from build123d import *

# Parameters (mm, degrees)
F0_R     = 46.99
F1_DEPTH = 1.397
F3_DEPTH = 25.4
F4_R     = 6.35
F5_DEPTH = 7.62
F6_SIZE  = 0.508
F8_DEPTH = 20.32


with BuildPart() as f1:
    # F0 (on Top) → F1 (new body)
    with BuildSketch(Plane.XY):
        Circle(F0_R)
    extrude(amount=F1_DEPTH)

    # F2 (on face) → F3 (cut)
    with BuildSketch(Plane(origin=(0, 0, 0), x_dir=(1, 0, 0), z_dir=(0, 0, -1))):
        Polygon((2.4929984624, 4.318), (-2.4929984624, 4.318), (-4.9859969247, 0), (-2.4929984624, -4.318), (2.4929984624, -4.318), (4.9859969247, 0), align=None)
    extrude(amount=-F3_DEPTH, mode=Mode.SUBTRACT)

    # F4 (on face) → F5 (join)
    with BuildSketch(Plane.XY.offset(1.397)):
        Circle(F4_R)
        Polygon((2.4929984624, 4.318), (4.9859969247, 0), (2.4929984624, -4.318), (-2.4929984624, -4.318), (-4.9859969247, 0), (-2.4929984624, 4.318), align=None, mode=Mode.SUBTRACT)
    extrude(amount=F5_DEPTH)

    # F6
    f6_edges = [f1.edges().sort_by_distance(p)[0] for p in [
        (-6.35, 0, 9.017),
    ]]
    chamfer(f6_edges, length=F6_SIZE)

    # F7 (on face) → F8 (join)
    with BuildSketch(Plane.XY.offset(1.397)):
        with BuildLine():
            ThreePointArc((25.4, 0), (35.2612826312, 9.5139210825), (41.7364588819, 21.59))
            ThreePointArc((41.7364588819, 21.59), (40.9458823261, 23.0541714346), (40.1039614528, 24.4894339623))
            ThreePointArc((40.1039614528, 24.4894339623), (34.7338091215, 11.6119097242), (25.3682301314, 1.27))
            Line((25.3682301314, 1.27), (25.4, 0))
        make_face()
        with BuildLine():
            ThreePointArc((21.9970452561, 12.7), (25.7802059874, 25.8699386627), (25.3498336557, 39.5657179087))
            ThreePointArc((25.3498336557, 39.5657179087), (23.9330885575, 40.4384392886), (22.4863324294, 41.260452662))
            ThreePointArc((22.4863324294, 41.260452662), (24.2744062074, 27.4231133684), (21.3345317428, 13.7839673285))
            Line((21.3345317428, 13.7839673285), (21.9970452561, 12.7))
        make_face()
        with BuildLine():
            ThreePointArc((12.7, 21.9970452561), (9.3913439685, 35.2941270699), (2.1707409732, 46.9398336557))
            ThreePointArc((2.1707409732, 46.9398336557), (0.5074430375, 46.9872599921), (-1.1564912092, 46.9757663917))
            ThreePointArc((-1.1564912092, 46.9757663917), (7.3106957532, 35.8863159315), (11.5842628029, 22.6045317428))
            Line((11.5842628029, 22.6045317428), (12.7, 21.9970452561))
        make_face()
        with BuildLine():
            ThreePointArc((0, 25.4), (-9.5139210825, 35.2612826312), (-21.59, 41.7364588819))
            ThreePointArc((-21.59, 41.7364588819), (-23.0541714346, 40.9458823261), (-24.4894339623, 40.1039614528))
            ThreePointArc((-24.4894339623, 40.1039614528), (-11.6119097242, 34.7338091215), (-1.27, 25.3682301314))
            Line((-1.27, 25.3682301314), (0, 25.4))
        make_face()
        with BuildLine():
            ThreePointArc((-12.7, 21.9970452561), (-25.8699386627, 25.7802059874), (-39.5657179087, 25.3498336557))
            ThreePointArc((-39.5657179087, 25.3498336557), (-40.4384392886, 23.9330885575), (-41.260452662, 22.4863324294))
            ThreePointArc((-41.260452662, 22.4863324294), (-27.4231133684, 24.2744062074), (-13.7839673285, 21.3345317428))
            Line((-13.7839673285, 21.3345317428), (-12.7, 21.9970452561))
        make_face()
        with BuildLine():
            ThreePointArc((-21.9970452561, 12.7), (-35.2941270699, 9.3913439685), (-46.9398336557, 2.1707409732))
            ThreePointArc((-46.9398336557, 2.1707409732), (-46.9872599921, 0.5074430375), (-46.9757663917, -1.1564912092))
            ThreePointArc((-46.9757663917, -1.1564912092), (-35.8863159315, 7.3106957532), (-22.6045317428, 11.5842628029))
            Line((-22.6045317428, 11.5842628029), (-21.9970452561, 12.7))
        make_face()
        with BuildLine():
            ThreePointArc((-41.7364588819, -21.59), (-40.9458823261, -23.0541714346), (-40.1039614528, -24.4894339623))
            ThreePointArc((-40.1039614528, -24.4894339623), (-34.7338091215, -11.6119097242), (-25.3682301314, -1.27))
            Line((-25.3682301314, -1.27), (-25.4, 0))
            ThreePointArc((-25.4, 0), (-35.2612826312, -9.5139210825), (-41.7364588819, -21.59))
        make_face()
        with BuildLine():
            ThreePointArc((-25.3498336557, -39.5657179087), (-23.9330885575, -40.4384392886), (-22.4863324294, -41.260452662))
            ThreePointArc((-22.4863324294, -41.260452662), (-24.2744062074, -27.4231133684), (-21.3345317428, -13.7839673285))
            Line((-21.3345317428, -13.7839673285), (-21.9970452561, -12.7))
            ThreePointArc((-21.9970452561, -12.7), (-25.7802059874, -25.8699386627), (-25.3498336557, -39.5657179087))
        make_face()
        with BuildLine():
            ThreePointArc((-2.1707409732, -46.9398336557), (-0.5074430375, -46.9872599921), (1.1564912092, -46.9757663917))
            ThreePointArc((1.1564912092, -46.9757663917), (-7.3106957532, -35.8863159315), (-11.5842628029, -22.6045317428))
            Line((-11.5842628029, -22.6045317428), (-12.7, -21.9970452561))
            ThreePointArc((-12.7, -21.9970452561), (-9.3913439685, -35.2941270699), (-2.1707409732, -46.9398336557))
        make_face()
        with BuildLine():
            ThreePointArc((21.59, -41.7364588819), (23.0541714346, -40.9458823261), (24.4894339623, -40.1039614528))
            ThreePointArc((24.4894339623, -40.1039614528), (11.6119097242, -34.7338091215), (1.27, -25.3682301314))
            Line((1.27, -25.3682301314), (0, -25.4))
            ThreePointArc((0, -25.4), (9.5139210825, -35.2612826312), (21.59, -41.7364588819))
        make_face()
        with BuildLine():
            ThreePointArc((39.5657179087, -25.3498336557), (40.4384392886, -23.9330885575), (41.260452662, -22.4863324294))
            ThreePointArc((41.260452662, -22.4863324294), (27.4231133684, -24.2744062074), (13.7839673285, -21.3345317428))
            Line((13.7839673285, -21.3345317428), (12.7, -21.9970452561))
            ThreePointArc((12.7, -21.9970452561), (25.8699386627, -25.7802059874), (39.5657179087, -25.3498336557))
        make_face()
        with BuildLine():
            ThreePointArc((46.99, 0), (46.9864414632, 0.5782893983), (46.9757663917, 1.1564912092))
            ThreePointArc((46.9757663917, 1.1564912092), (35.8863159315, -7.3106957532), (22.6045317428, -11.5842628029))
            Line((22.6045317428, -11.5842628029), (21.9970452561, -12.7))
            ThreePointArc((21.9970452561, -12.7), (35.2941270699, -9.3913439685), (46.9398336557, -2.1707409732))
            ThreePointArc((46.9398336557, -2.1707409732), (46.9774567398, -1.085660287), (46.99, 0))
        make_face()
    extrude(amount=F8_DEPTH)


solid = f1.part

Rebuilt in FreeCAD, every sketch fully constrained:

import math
import FreeCAD as App
import Part
import Sketcher
Q = App.Units.Quantity


def edges_at(feature, points):
    """Names of the edges that pass closest to the given points."""
    edges = feature.Shape.Edges
    near = lambda p: min(range(len(edges)), key=lambda i: edges[i].distToShape(Part.Vertex(*p))[0])
    return sorted({f"Edge{near(p) + 1}" for p in points})


def add_polygon(sketch, points):
    """Adds a closed chain of lines whose ends are joined by coincident constraints."""
    first, n = sketch.GeometryCount, len(points)
    for a, b in zip(points, points[1:] + points[:1]):
        sketch.addGeometry(Part.LineSegment(App.Vector(*a, 0), App.Vector(*b, 0)), False)
    for i in range(n):
        sketch.addConstraint(Sketcher.Constraint("Coincident", first + i, 2, first + (i + 1) % n, 1))

doc = App.newDocument("Part")
body = doc.addObject("PartDesign::Body", "Body")

sketch1 = body.newObject("Sketcher::SketchObject", "Sketch")
sketch1.AttachmentSupport = (doc.getObject("XY_Plane"), [""])
sketch1.MapMode = "FlatFace"
sketch1.addGeometry(Part.Circle(App.Vector(0, 0, 0), App.Vector(0, 0, 1), 46.99), False)
sketch1.addConstraint([
    Sketcher.Constraint("Coincident", 0, 3, -1, 1),
    Sketcher.Constraint("Diameter", 0, Q("3.7 in")),
])
pad1 = body.newObject("PartDesign::Pad", "Pad")
pad1.Profile = sketch1
pad1.Length = Q("0.055 in")

sketch2 = body.newObject("Sketcher::SketchObject", "Sketch001")
sketch2.AttachmentSupport = (doc.getObject("XY_Plane"), [""])
sketch2.MapMode = "FlatFace"
add_polygon(sketch2, [(2.492998, -4.318), (-2.492998, -4.318), (-4.985997, 0), (-2.492998, 4.318), (2.492998, 4.318), (4.985997, 0)])
sketch2.addConstraint([
    Sketcher.Constraint("Horizontal", 0),
    Sketcher.Constraint("Horizontal", 3),
    Sketcher.Constraint("Symmetric", 0, 2, 3, 2, -1, 1),
    Sketcher.Constraint("Symmetric", 1, 2, 4, 2, -1, 1),
    Sketcher.Constraint("PointOnObject", 1, 2, -1),
    Sketcher.Constraint("Parallel", 2, 5),
    Sketcher.Constraint("Vertical", 0, 2, 2, 2),
    Sketcher.Constraint("Angle", 1, Q("120 deg")),
    Sketcher.Constraint("DistanceY", 0, 2, -1, 1, Q("0.17 in")),
    Sketcher.Constraint("DistanceX", 0, 2, -1, 1, Q("2.492998 mm")),
])
pocket1 = body.newObject("PartDesign::Pocket", "Pocket")
pocket1.Profile = sketch2
pocket1.Length = Q("1 in")
pocket1.Reversed = True

sketch3 = body.newObject("Sketcher::SketchObject", "Sketch002")
sketch3.AttachmentSupport = (doc.getObject("XY_Plane"), [""])
sketch3.MapMode = "FlatFace"
sketch3.AttachmentOffset = App.Placement(App.Vector(0, 0, 0.055 * 25.4), App.Rotation())
sketch3.addGeometry(Part.Circle(App.Vector(0, 0, 0), App.Vector(0, 0, 1), 6.35), False)
add_polygon(sketch3, [(-2.492998, 4.318), (2.492998, 4.318), (4.985997, 0), (2.492998, -4.318), (-2.492998, -4.318), (-4.985997, 0)])
sketch3.addConstraint([
    Sketcher.Constraint("Horizontal", 1),
    Sketcher.Constraint("Horizontal", 4),
    Sketcher.Constraint("Coincident", 0, 3, -1, 1),
    Sketcher.Constraint("Symmetric", 1, 2, 4, 2, -1, 1),
    Sketcher.Constraint("Symmetric", 2, 2, 5, 2, -1, 1),
    Sketcher.Constraint("PointOnObject", 2, 2, -1),
    Sketcher.Constraint("Parallel", 3, 6),
    Sketcher.Constraint("Vertical", 1, 2, 3, 2),
    Sketcher.Constraint("Diameter", 0, Q("0.5 in")),
    Sketcher.Constraint("Angle", 2, Q("-60 deg")),
    Sketcher.Constraint("DistanceY", -1, 1, 1, 2, Q("0.17 in")),
    Sketcher.Constraint("DistanceX", -1, 1, 1, 2, Q("2.492998 mm")),
])
pad2 = body.newObject("PartDesign::Pad", "Pad001")
pad2.Profile = sketch3
pad2.Length = Q("0.3 in")
doc.recompute()

chamfer = body.newObject("PartDesign::Chamfer", "Chamfer")
chamfer.Base = (pad2, edges_at(pad2, [(-6.35, 0, 9.017)]))
chamfer.Size = Q("0.02 in")

sketch4 = body.newObject("Sketcher::SketchObject", "Sketch003")
sketch4.AttachmentSupport = (doc.getObject("XY_Plane"), [""])
sketch4.MapMode = "FlatFace"
sketch4.AttachmentOffset = App.Placement(App.Vector(0, 0, 0.055 * 25.4), App.Rotation())
sketch4.addGeometry([
    Part.ArcOfCircle(Part.Circle(App.Vector(0, 36.195, 0), App.Vector(0, 0, 1), 44.218074), math.radians(-54.940573), math.radians(-19.28667)),
    Part.ArcOfCircle(Part.Circle(App.Vector(0, 0, 0), App.Vector(0, 0, 1), 46.99), math.radians(27.352233), math.radians(31.410274)),
    Part.ArcOfCircle(Part.Circle(App.Vector(0, 33.655, 0), App.Vector(0, 0, 1), 41.138003), math.radians(-51.92724), math.radians(-12.873571)),
    Part.LineSegment(App.Vector(25.36823, 1.27, 0), App.Vector(25.4, 0, 0)),
    Part.ArcOfCircle(Part.Circle(App.Vector(-18.0975, 31.345789, 0), App.Vector(0, 0, 1), 44.218074), math.radians(-24.940573), math.radians(10.71333)),
    Part.ArcOfCircle(Part.Circle(App.Vector(0, 0, 0), App.Vector(0, 0, 1), 46.99), math.radians(57.352233), math.radians(61.410274)),
    Part.ArcOfCircle(Part.Circle(App.Vector(-16.8275, 29.146085, 0), App.Vector(0, 0, 1), 41.138003), math.radians(-21.92724), math.radians(17.126429)),
    Part.LineSegment(App.Vector(21.334532, 13.783967, 0), App.Vector(21.997045, 12.7, 0)),
    Part.ArcOfCircle(Part.Circle(App.Vector(-31.345789, 18.0975, 0), App.Vector(0, 0, 1), 44.218074), math.radians(5.059427), math.radians(40.71333)),
    Part.ArcOfCircle(Part.Circle(App.Vector(0, 0, 0), App.Vector(0, 0, 1), 46.99), math.radians(87.352233), math.radians(91.410274)),
    Part.ArcOfCircle(Part.Circle(App.Vector(-29.146085, 16.8275, 0), App.Vector(0, 0, 1), 41.138003), math.radians(8.07276), math.radians(47.126429)),
    Part.LineSegment(App.Vector(11.584263, 22.604532, 0), App.Vector(12.7, 21.997045, 0)),
    Part.ArcOfCircle(Part.Circle(App.Vector(-36.195, 0, 0), App.Vector(0, 0, 1), 44.218074), math.radians(35.059427), math.radians(70.71333)),
    Part.ArcOfCircle(Part.Circle(App.Vector(0, 0, 0), App.Vector(0, 0, 1), 46.99), math.radians(117.352233), math.radians(121.410274)),
    Part.ArcOfCircle(Part.Circle(App.Vector(-33.655, 0, 0), App.Vector(0, 0, 1), 41.138003), math.radians(38.07276), math.radians(77.126429)),
    Part.LineSegment(App.Vector(-1.27, 25.36823, 0), App.Vector(0, 25.4, 0)),
    Part.ArcOfCircle(Part.Circle(App.Vector(-31.345789, -18.0975, 0), App.Vector(0, 0, 1), 44.218074), math.radians(65.059427), math.radians(100.71333)),
    Part.ArcOfCircle(Part.Circle(App.Vector(0, 0, 0), App.Vector(0, 0, 1), 46.99), math.radians(147.352233), math.radians(151.410274)),
    Part.ArcOfCircle(Part.Circle(App.Vector(-29.146085, -16.8275, 0), App.Vector(0, 0, 1), 41.138003), math.radians(68.07276), math.radians(107.126429)),
    Part.LineSegment(App.Vector(-13.783967, 21.334532, 0), App.Vector(-12.7, 21.997045, 0)),
    Part.ArcOfCircle(Part.Circle(App.Vector(-18.0975, -31.345789, 0), App.Vector(0, 0, 1), 44.218074), math.radians(95.059427), math.radians(130.71333)),
    Part.ArcOfCircle(Part.Circle(App.Vector(0, 0, 0), App.Vector(0, 0, 1), 46.99), math.radians(177.352233), math.radians(181.410274)),
    Part.ArcOfCircle(Part.Circle(App.Vector(-16.8275, -29.146085, 0), App.Vector(0, 0, 1), 41.138003), math.radians(98.07276), math.radians(137.126429)),
    Part.LineSegment(App.Vector(-22.604532, 11.584263, 0), App.Vector(-21.997045, 12.7, 0)),
    Part.ArcOfCircle(Part.Circle(App.Vector(0, 0, 0), App.Vector(0, 0, 1), 46.99), math.radians(-152.647767), math.radians(-148.589726)),
    Part.ArcOfCircle(Part.Circle(App.Vector(0, -33.655, 0), App.Vector(0, 0, 1), 41.138003), math.radians(128.07276), math.radians(167.126429)),
    Part.LineSegment(App.Vector(-25.36823, -1.27, 0), App.Vector(-25.4, 0, 0)),
    Part.ArcOfCircle(Part.Circle(App.Vector(0, -36.195, 0), App.Vector(0, 0, 1), 44.218074), math.radians(125.059427), math.radians(160.71333)),
    Part.ArcOfCircle(Part.Circle(App.Vector(0, 0, 0), App.Vector(0, 0, 1), 46.99), math.radians(-122.647767), math.radians(-118.589726)),
    Part.ArcOfCircle(Part.Circle(App.Vector(16.8275, -29.146085, 0), App.Vector(0, 0, 1), 41.138003), math.radians(158.07276), math.radians(197.126429)),
    Part.LineSegment(App.Vector(-21.334532, -13.783967, 0), App.Vector(-21.997045, -12.7, 0)),
    Part.ArcOfCircle(Part.Circle(App.Vector(18.0975, -31.345789, 0), App.Vector(0, 0, 1), 44.218074), math.radians(155.059427), math.radians(190.71333)),
    Part.ArcOfCircle(Part.Circle(App.Vector(0, 0, 0), App.Vector(0, 0, 1), 46.99), math.radians(-92.647767), math.radians(-88.589726)),
    Part.ArcOfCircle(Part.Circle(App.Vector(29.146085, -16.8275, 0), App.Vector(0, 0, 1), 41.138003), math.radians(-171.92724), math.radians(-132.873571)),
    Part.LineSegment(App.Vector(-11.584263, -22.604532, 0), App.Vector(-12.7, -21.997045, 0)),
    Part.ArcOfCircle(Part.Circle(App.Vector(31.345789, -18.0975, 0), App.Vector(0, 0, 1), 44.218074), math.radians(-174.940573), math.radians(-139.28667)),
    Part.ArcOfCircle(Part.Circle(App.Vector(0, 0, 0), App.Vector(0, 0, 1), 46.99), math.radians(-62.647767), math.radians(-58.589726)),
    Part.ArcOfCircle(Part.Circle(App.Vector(33.655, 0, 0), App.Vector(0, 0, 1), 41.138003), math.radians(-141.92724), math.radians(-102.873571)),
    Part.LineSegment(App.Vector(1.27, -25.36823, 0), App.Vector(0, -25.4, 0)),
    Part.ArcOfCircle(Part.Circle(App.Vector(36.195, 0, 0), App.Vector(0, 0, 1), 44.218074), math.radians(-144.940573), math.radians(-109.28667)),
    Part.ArcOfCircle(Part.Circle(App.Vector(0, 0, 0), App.Vector(0, 0, 1), 46.99), math.radians(-32.647767), math.radians(-28.589726)),
    Part.ArcOfCircle(Part.Circle(App.Vector(29.146085, 16.8275, 0), App.Vector(0, 0, 1), 41.138003), math.radians(-111.92724), math.radians(-72.873571)),
    Part.LineSegment(App.Vector(13.783967, -21.334532, 0), App.Vector(12.7, -21.997045, 0)),
    Part.ArcOfCircle(Part.Circle(App.Vector(31.345789, 18.0975, 0), App.Vector(0, 0, 1), 44.218074), math.radians(-114.940573), math.radians(-79.28667)),
    Part.ArcOfCircle(Part.Circle(App.Vector(0, 0, 0), App.Vector(0, 0, 1), 46.99), math.radians(0), math.radians(1.410274)),
    Part.ArcOfCircle(Part.Circle(App.Vector(16.8275, 29.146085, 0), App.Vector(0, 0, 1), 41.138003), math.radians(-81.92724), math.radians(-42.873571)),
    Part.LineSegment(App.Vector(22.604532, -11.584263, 0), App.Vector(21.997045, -12.7, 0)),
    Part.ArcOfCircle(Part.Circle(App.Vector(18.0975, 31.345789, 0), App.Vector(0, 0, 1), 44.218074), math.radians(-84.940573), math.radians(-49.28667)),
    Part.ArcOfCircle(Part.Circle(App.Vector(0, 0, 0), App.Vector(0, 0, 1), 46.99), math.radians(-2.647767), math.radians(0)),
], False)
sketch4.addConstraint([
    Sketcher.Constraint("Coincident", 0, 2, 1, 1),
    Sketcher.Constraint("Coincident", 1, 2, 2, 2),
    Sketcher.Constraint("Coincident", 2, 1, 3, 1),
    Sketcher.Constraint("Coincident", 3, 2, 0, 1),
    Sketcher.Constraint("Coincident", 4, 2, 5, 1),
    Sketcher.Constraint("Coincident", 5, 2, 6, 2),
    Sketcher.Constraint("Coincident", 6, 1, 7, 1),
    Sketcher.Constraint("Coincident", 7, 2, 4, 1),
    Sketcher.Constraint("Coincident", 8, 2, 9, 1),
    Sketcher.Constraint("Coincident", 9, 2, 10, 2),
    Sketcher.Constraint("Coincident", 10, 1, 11, 1),
    Sketcher.Constraint("Coincident", 11, 2, 8, 1),
    Sketcher.Constraint("Coincident", 12, 2, 13, 1),
    Sketcher.Constraint("Coincident", 13, 2, 14, 2),
    Sketcher.Constraint("Coincident", 14, 1, 15, 1),
    Sketcher.Constraint("Coincident", 15, 2, 12, 1),
    Sketcher.Constraint("Coincident", 16, 2, 17, 1),
    Sketcher.Constraint("Coincident", 17, 2, 18, 2),
    Sketcher.Constraint("Coincident", 18, 1, 19, 1),
    Sketcher.Constraint("Coincident", 19, 2, 16, 1),
    Sketcher.Constraint("Coincident", 20, 2, 21, 1),
    Sketcher.Constraint("Coincident", 21, 2, 22, 2),
    Sketcher.Constraint("Coincident", 22, 1, 23, 1),
    Sketcher.Constraint("Coincident", 23, 2, 20, 1),
    Sketcher.Constraint("Coincident", 24, 2, 25, 2),
    Sketcher.Constraint("Coincident", 25, 1, 26, 1),
    Sketcher.Constraint("Coincident", 26, 2, 27, 1),
    Sketcher.Constraint("Coincident", 27, 2, 24, 1),
    Sketcher.Constraint("Coincident", 28, 2, 29, 2),
    Sketcher.Constraint("Coincident", 29, 1, 30, 1),
    Sketcher.Constraint("Coincident", 30, 2, 31, 1),
    Sketcher.Constraint("Coincident", 31, 2, 28, 1),
    Sketcher.Constraint("Coincident", 32, 2, 33, 2),
    Sketcher.Constraint("Coincident", 33, 1, 34, 1),
    Sketcher.Constraint("Coincident", 34, 2, 35, 1),
    Sketcher.Constraint("Coincident", 35, 2, 32, 1),
    Sketcher.Constraint("Coincident", 36, 2, 37, 2),
    Sketcher.Constraint("Coincident", 37, 1, 38, 1),
    Sketcher.Constraint("Coincident", 38, 2, 39, 1),
    Sketcher.Constraint("Coincident", 39, 2, 36, 1),
    Sketcher.Constraint("Coincident", 40, 2, 41, 2),
    Sketcher.Constraint("Coincident", 41, 1, 42, 1),
    Sketcher.Constraint("Coincident", 42, 2, 43, 1),
    Sketcher.Constraint("Coincident", 43, 2, 40, 1),
    Sketcher.Constraint("Coincident", 44, 2, 45, 2),
    Sketcher.Constraint("Coincident", 45, 1, 46, 1),
    Sketcher.Constraint("Coincident", 46, 2, 47, 1),
    Sketcher.Constraint("Coincident", 47, 2, 48, 1),
    Sketcher.Constraint("Tangent", 48, 2, 44, 1),
    Sketcher.Constraint("Coincident", 1, 3, -1, 1),
    Sketcher.Constraint("Coincident", 5, 3, -1, 1),
    Sketcher.Constraint("Coincident", 9, 3, -1, 1),
    Sketcher.Constraint("Coincident", 13, 3, -1, 1),
    Sketcher.Constraint("Coincident", 17, 3, -1, 1),
    Sketcher.Constraint("Coincident", 21, 3, -1, 1),
    Sketcher.Constraint("Coincident", 24, 3, -1, 1),
    Sketcher.Constraint("Coincident", 28, 3, -1, 1),
    Sketcher.Constraint("Coincident", 32, 3, -1, 1),
    Sketcher.Constraint("Coincident", 36, 3, -1, 1),
    Sketcher.Constraint("Coincident", 40, 3, -1, 1),
    Sketcher.Constraint("Coincident", 44, 3, -1, 1),
    Sketcher.Constraint("Equal", 0, 4),
    Sketcher.Constraint("Equal", 1, 5),
    Sketcher.Constraint("Equal", 2, 6),
    Sketcher.Constraint("Equal", 4, 8),
    Sketcher.Constraint("Equal", 5, 9),
    Sketcher.Constraint("Equal", 6, 10),
    Sketcher.Constraint("Equal", 8, 12),
    Sketcher.Constraint("Equal", 9, 13),
    Sketcher.Constraint("Equal", 10, 14),
    Sketcher.Constraint("Equal", 12, 16),
    Sketcher.Constraint("Equal", 13, 17),
    Sketcher.Constraint("Equal", 14, 18),
    Sketcher.Constraint("Equal", 16, 20),
    Sketcher.Constraint("Equal", 17, 21),
    Sketcher.Constraint("Equal", 18, 22),
    Sketcher.Constraint("Equal", 21, 24),
    Sketcher.Constraint("Equal", 22, 25),
    Sketcher.Constraint("Equal", 20, 27),
    Sketcher.Constraint("Equal", 24, 28),
    Sketcher.Constraint("Equal", 25, 29),
    Sketcher.Constraint("Equal", 27, 31),
    Sketcher.Constraint("Equal", 28, 32),
    Sketcher.Constraint("Equal", 29, 33),
    Sketcher.Constraint("Equal", 31, 35),
    Sketcher.Constraint("Equal", 32, 36),
    Sketcher.Constraint("Equal", 33, 37),
    Sketcher.Constraint("Equal", 35, 39),
    Sketcher.Constraint("Equal", 36, 40),
    Sketcher.Constraint("Equal", 37, 41),
    Sketcher.Constraint("Equal", 39, 43),
    Sketcher.Constraint("Equal", 40, 44),
    Sketcher.Constraint("Equal", 41, 45),
    Sketcher.Constraint("Equal", 43, 47),
    Sketcher.Constraint("Equal", 44, 48),
    Sketcher.Constraint("Symmetric", 2, 3, 25, 3, -1, 1),
    Sketcher.Constraint("Symmetric", 0, 3, 27, 3, -1, 1),
    Sketcher.Constraint("Symmetric", 6, 3, 29, 3, -1, 1),
    Sketcher.Constraint("Symmetric", 4, 3, 31, 3, -1, 1),
    Sketcher.Constraint("Symmetric", 10, 3, 33, 3, -1, 1),
    Sketcher.Constraint("Symmetric", 8, 3, 35, 3, -1, 1),
    Sketcher.Constraint("Symmetric", 14, 3, 37, 3, -1, 1),
    Sketcher.Constraint("Symmetric", 12, 3, 39, 3, -1, 1),
    Sketcher.Constraint("Symmetric", 18, 3, 41, 3, -1, 1),
    Sketcher.Constraint("Symmetric", 16, 3, 43, 3, -1, 1),
    Sketcher.Constraint("Symmetric", 22, 3, 45, 3, -1, 1),
    Sketcher.Constraint("Symmetric", 20, 3, 47, 3, -1, 1),
    Sketcher.Constraint("Symmetric", 22, 3, 29, 3, -2),
    Sketcher.Constraint("Symmetric", 20, 3, 31, 3, -2),
    Sketcher.Constraint("Symmetric", 18, 3, 33, 3, -2),
    Sketcher.Constraint("Symmetric", 16, 3, 35, 3, -2),
    Sketcher.Constraint("Symmetric", 11, 2, 19, 2, -2),
    Sketcher.Constraint("Symmetric", 7, 2, 23, 2, -2),
    Sketcher.Constraint("Symmetric", 3, 2, 26, 2, -2),
    Sketcher.Constraint("Symmetric", 34, 2, 42, 2, -2),
    Sketcher.Constraint("Symmetric", 30, 2, 46, 2, -2),
    Sketcher.Constraint("Symmetric", 15, 2, 38, 2, -1),
    Sketcher.Constraint("PointOnObject", 0, 3, -2),
    Sketcher.Constraint("PointOnObject", 2, 3, -2),
    Sketcher.Constraint("PointOnObject", 12, 3, -1),
    Sketcher.Constraint("PointOnObject", 14, 3, -1),
    Sketcher.Constraint("PointOnObject", 48, 2, -1),
    Sketcher.Constraint("Perpendicular", 3, 15),
    Sketcher.Constraint("Perpendicular", 7, 19),
    Sketcher.Constraint("Perpendicular", 11, 23),
    Sketcher.Constraint("Perpendicular", 15, 26),
    Sketcher.Constraint("Perpendicular", 19, 30),
    Sketcher.Constraint("Perpendicular", 23, 34),
    Sketcher.Constraint("Perpendicular", 26, 38),
    Sketcher.Constraint("Perpendicular", 30, 42),
    Sketcher.Constraint("Perpendicular", 34, 46),
    Sketcher.Constraint("Equal", 3, 7),
    Sketcher.Constraint("Equal", 7, 11),
    Sketcher.Constraint("Equal", 11, 15),
    Sketcher.Constraint("Equal", 15, 19),
    Sketcher.Constraint("Equal", 19, 23),
    Sketcher.Constraint("Radius", 1, Q("1.85 in")),
    Sketcher.Constraint("DistanceX", -1, 1, 3, 2, Q("1 in")),
    Sketcher.Constraint("DistanceY", -1, 1, 15, 2, Q("1 in")),
    Sketcher.Constraint("DistanceY", -1, 1, 7, 2, Q("0.5 in")),
    Sketcher.Constraint("DistanceX", -1, 1, 11, 2, Q("0.5 in")),
    Sketcher.Constraint("DistanceY", -1, 1, 0, 2, Q("0.85 in")),
    Sketcher.Constraint("DistanceY", -1, 1, 2, 1, Q("0.05 in")),
    Sketcher.Constraint("DistanceY", -1, 1, 2, 3, Q("1.325 in")),
    Sketcher.Constraint("DistanceX", 4, 3, -1, 1, Q("0.7125 in")),
    Sketcher.Constraint("DistanceX", 6, 3, -1, 1, Q("0.6625 in")),
    Sketcher.Constraint("DistanceY", -1, 1, 8, 3, Q("0.7125 in")),
    Sketcher.Constraint("Radius", 2, Q("41.138003 mm")),
    Sketcher.Constraint("DistanceX", -1, 1, 6, 1, Q("21.334532 mm")),
])
pad3 = body.newObject("PartDesign::Pad", "Pad002")
pad3.Profile = sketch4
pad3.Length = Q("0.8 in")

doc.recompute()
